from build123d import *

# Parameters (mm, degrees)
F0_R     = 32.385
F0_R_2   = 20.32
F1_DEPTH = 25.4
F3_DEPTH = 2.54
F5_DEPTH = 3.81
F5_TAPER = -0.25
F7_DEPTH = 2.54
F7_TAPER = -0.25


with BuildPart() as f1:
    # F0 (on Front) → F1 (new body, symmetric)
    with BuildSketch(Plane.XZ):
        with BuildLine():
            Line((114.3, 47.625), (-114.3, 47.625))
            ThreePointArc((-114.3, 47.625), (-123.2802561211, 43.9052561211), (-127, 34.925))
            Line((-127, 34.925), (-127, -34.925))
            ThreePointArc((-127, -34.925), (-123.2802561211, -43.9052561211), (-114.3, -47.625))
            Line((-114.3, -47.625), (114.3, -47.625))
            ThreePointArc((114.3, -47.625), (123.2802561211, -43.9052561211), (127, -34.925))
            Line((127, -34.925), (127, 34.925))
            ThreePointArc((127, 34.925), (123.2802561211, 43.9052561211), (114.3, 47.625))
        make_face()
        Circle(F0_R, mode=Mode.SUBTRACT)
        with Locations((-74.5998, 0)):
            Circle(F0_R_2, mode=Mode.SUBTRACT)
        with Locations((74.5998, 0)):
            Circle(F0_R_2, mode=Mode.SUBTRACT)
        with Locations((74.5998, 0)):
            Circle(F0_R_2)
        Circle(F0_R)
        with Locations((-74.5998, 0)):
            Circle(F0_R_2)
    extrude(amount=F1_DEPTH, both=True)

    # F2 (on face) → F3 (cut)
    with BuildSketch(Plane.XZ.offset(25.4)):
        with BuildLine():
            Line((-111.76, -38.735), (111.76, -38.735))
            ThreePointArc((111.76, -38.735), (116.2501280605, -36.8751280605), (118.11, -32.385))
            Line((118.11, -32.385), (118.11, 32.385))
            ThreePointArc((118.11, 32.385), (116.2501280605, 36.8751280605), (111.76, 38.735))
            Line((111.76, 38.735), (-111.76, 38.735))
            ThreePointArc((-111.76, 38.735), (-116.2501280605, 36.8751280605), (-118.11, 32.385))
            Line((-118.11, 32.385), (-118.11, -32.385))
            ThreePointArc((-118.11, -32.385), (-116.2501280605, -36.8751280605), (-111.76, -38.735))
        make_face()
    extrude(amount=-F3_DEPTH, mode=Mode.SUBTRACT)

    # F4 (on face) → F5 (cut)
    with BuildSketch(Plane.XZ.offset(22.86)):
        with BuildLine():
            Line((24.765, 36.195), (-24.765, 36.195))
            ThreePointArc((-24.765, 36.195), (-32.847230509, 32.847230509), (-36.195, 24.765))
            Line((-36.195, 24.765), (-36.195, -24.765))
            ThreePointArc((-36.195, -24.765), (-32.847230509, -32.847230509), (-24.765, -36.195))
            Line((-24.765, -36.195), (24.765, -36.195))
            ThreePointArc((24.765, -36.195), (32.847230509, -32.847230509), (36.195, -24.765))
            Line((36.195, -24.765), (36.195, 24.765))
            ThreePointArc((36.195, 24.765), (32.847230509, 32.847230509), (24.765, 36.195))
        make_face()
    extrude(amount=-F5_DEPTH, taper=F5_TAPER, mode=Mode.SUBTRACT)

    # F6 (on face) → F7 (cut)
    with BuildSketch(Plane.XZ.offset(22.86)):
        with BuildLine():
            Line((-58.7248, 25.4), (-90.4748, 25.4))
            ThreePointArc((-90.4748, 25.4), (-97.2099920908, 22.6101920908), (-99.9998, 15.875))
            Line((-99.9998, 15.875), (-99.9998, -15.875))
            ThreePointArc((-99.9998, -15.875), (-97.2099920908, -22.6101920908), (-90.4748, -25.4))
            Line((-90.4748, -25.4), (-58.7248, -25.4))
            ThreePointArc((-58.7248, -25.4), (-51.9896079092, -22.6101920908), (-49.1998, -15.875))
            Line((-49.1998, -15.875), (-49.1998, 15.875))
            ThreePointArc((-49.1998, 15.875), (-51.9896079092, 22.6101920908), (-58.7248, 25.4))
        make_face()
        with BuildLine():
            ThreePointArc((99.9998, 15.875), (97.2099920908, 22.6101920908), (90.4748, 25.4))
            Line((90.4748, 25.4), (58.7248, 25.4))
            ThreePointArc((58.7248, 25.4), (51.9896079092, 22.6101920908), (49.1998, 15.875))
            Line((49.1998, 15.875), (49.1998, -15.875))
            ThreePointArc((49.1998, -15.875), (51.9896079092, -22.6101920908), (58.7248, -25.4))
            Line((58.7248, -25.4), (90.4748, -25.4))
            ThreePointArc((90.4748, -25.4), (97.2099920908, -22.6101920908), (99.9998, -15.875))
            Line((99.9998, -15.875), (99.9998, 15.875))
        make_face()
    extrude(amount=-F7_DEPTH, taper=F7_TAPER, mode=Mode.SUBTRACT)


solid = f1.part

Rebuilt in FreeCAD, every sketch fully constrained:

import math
import FreeCAD as App
import Part
import Sketcher
from FreeCAD import Vector
Q = App.Units.Quantity

doc = App.newDocument("Part")
params = doc.addObject("Spreadsheet::Sheet", "Params")
for row, (alias, value) in enumerate([
    ("sketch1_radius", "0.5 in"),
    ("sketch1_width", "9 in"),
    ("sketch1_height", "2.75 in"),
    ("pad1_length", "2 in"),
    ("sketch2_radius", "0.25 in"),
    ("sketch2_width", "8.8 in"),
    ("sketch2_height", "2.55 in"),
    ("pocket1_length", "0.1 in"),
    ("sketch3_radius", "0.45 in"),
    ("sketch3_width", "1.95 in"),
    ("pocket2_length", "0.15 in"),
    ("pocket2_taper", "0.25 deg"),
    ("sketch4_radius", "0.375 in"),
    ("pocket3_length", "0.1 in"),
    ("pocket3_taper", "0.25 deg"),
], start=1):
    params.set(f"A{row}", alias)
    params.set(f"B{row}", "=" + value)
    params.setAlias(f"B{row}", alias)

body = doc.addObject("PartDesign::Body", "Body")

# Sketch on XZ plane
sketch1 = doc.addObject("Sketcher::SketchObject", "Sketch")
body.addObject(sketch1)
sketch1.AttachmentSupport = (doc.XZ_Plane, [""])
sketch1.MapMode = "FlatFace"
sketch1.addGeometry([
    Part.LineSegment(Vector(114, 48, 0), Vector(-114, 48, 0)),  # 0
    Part.ArcOfCircle(Part.Circle(Vector(-114, 35, 0), Vector(0, 0, 1), 13), math.radians(90), math.radians(180)),  # 1
    Part.LineSegment(Vector(-127, 35, 0), Vector(-127, -35, 0)),  # 2
    Part.ArcOfCircle(Part.Circle(Vector(-114, -35, 0), Vector(0, 0, 1), 13), math.radians(180), math.radians(270)),  # 3
    Part.LineSegment(Vector(-114, -48, 0), Vector(114, -48, 0)),  # 4
    Part.ArcOfCircle(Part.Circle(Vector(114, -35, 0), Vector(0, 0, 1), 13), math.radians(-90), math.radians(0)),  # 5
    Part.LineSegment(Vector(127, -35, 0), Vector(127, 35, 0)),  # 6
    Part.ArcOfCircle(Part.Circle(Vector(114, 35, 0), Vector(0, 0, 1), 13), math.radians(0), math.radians(90)),  # 7
], False)
sketch1.addConstraint([
    Sketcher.Constraint("Tangent", 0, 2, 1, 1),
    Sketcher.Constraint("Tangent", 1, 2, 2, 1),
    Sketcher.Constraint("Tangent", 2, 2, 3, 1),
    Sketcher.Constraint("Tangent", 3, 2, 4, 1),
    Sketcher.Constraint("Tangent", 4, 2, 5, 1),
    Sketcher.Constraint("Tangent", 5, 2, 6, 1),
    Sketcher.Constraint("Tangent", 6, 2, 7, 1),
    Sketcher.Constraint("Tangent", 7, 2, 0, 1),
    Sketcher.Constraint("Horizontal", 0),
    Sketcher.Constraint("Vertical", 2),
    Sketcher.Constraint("Horizontal", 4),
    Sketcher.Constraint("Vertical", 6),
    Sketcher.Constraint("Equal", 1, 3),
    Sketcher.Constraint("Equal", 3, 5),
    Sketcher.Constraint("Equal", 5, 7),
    Sketcher.Constraint("Symmetric", 1, 3, 5, 3, -1, 1),
    Sketcher.Constraint("Radius", 1, Q("0.5 in")),
    Sketcher.Constraint("DistanceX", 0, 2, 0, 1, Q("9 in")),
    Sketcher.Constraint("DistanceY", 2, 2, 2, 1, Q("2.75 in")),
])
sketch1.setExpression("Constraints[16]", "Params.sketch1_radius")
sketch1.setExpression("Constraints[17]", "Params.sketch1_width")
sketch1.setExpression("Constraints[18]", "Params.sketch1_height")
pad1 = doc.addObject("PartDesign::Pad", "Pad")
body.addObject(pad1)
pad1.Profile = sketch1
pad1.setExpression("Length", "Params.pad1_length")
pad1.Midplane = True

# Sketch on XZ plane
sketch2 = doc.addObject("Sketcher::SketchObject", "Sketch001")
body.addObject(sketch2)
sketch2.AttachmentSupport = (doc.XZ_Plane, [""])
sketch2.MapMode = "FlatFace"
sketch2.AttachmentOffset = App.Placement(Vector(0, 0, 1 * 25.4), App.Rotation())
sketch2.addGeometry([
    Part.LineSegment(Vector(-112, -39, 0), Vector(112, -39, 0)),  # 0
    Part.ArcOfCircle(Part.Circle(Vector(112, -32, 0), Vector(0, 0, 1), 6), math.radians(-90), math.radians(0)),  # 1
    Part.LineSegment(Vector(118, -32, 0), Vector(118, 32, 0)),  # 2
    Part.ArcOfCircle(Part.Circle(Vector(112, 32, 0), Vector(0, 0, 1), 6), math.radians(0), math.radians(90)),  # 3
    Part.LineSegment(Vector(112, 39, 0), Vector(-112, 39, 0)),  # 4
    Part.ArcOfCircle(Part.Circle(Vector(-112, 32, 0), Vector(0, 0, 1), 6), math.radians(90), math.radians(180)),  # 5
    Part.LineSegment(Vector(-118, 32, 0), Vector(-118, -32, 0)),  # 6
    Part.ArcOfCircle(Part.Circle(Vector(-112, -32, 0), Vector(0, 0, 1), 6), math.radians(180), math.radians(270)),  # 7
], False)
sketch2.addConstraint([
    Sketcher.Constraint("Tangent", 0, 2, 1, 1),
    Sketcher.Constraint("Tangent", 1, 2, 2, 1),
    Sketcher.Constraint("Tangent", 2, 2, 3, 1),
    Sketcher.Constraint("Tangent", 3, 2, 4, 1),
    Sketcher.Constraint("Tangent", 4, 2, 5, 1),
    Sketcher.Constraint("Tangent", 5, 2, 6, 1),
    Sketcher.Constraint("Tangent", 6, 2, 7, 1),
    Sketcher.Constraint("Tangent", 7, 2, 0, 1),
    Sketcher.Constraint("Horizontal", 0),
    Sketcher.Constraint("Vertical", 2),
    Sketcher.Constraint("Horizontal", 4),
    Sketcher.Constraint("Vertical", 6),
    Sketcher.Constraint("Equal", 1, 3),
    Sketcher.Constraint("Equal", 3, 5),
    Sketcher.Constraint("Equal", 5, 7),
    Sketcher.Constraint("Symmetric", 1, 3, 5, 3, -1, 1),
    Sketcher.Constraint("Radius", 1, Q("0.25 in")),
    Sketcher.Constraint("DistanceX", 0, 1, 0, 2, Q("8.8 in")),
    Sketcher.Constraint("DistanceY", 2, 1, 2, 2, Q("2.55 in")),
])
sketch2.setExpression("Constraints[16]", "Params.sketch2_radius")
sketch2.setExpression("Constraints[17]", "Params.sketch2_width")
sketch2.setExpression("Constraints[18]", "Params.sketch2_height")
pocket1 = doc.addObject("PartDesign::Pocket", "Pocket")
body.addObject(pocket1)
pocket1.Profile = sketch2
pocket1.setExpression("Length", "Params.pocket1_length")

# Sketch on XZ plane
sketch3 = doc.addObject("Sketcher::SketchObject", "Sketch002")
body.addObject(sketch3)
sketch3.AttachmentSupport = (doc.XZ_Plane, [""])
sketch3.MapMode = "FlatFace"
sketch3.AttachmentOffset = App.Placement(Vector(0, 0, 0.9 * 25.4), App.Rotation())
sketch3.addGeometry([
    Part.LineSegment(Vector(25, 36, 0), Vector(-25, 36, 0)),  # 0
    Part.ArcOfCircle(Part.Circle(Vector(-25, 25, 0), Vector(0, 0, 1), 11), math.radians(90), math.radians(180)),  # 1
    Part.LineSegment(Vector(-36, 25, 0), Vector(-36, -25, 0)),  # 2
    Part.ArcOfCircle(Part.Circle(Vector(-25, -25, 0), Vector(0, 0, 1), 11), math.radians(180), math.radians(270)),  # 3
    Part.LineSegment(Vector(-25, -36, 0), Vector(25, -36, 0)),  # 4
    Part.ArcOfCircle(Part.Circle(Vector(25, -25, 0), Vector(0, 0, 1), 11), math.radians(-90), math.radians(0)),  # 5
    Part.LineSegment(Vector(36, -25, 0), Vector(36, 25, 0)),  # 6
    Part.ArcOfCircle(Part.Circle(Vector(25, 25, 0), Vector(0, 0, 1), 11), math.radians(0), math.radians(90)),  # 7
], False)
sketch3.addConstraint([
    Sketcher.Constraint("Tangent", 0, 2, 1, 1),
    Sketcher.Constraint("Tangent", 1, 2, 2, 1),
    Sketcher.Constraint("Tangent", 2, 2, 3, 1),
    Sketcher.Constraint("Tangent", 3, 2, 4, 1),
    Sketcher.Constraint("Tangent", 4, 2, 5, 1),
    Sketcher.Constraint("Tangent", 5, 2, 6, 1),
    Sketcher.Constraint("Tangent", 6, 2, 7, 1),
    Sketcher.Constraint("Tangent", 7, 2, 0, 1),
    Sketcher.Constraint("Horizontal", 0),
    Sketcher.Constraint("Vertical", 2),
    Sketcher.Constraint("Horizontal", 4),
    Sketcher.Constraint("Vertical", 6),
    Sketcher.Constraint("Equal", 1, 3),
    Sketcher.Constraint("Equal", 3, 5),
    Sketcher.Constraint("Equal", 5, 7),
    Sketcher.Constraint("Symmetric", 1, 3, 5, 3, -1, 1),
    Sketcher.Constraint("Equal", 4, 2),
    Sketcher.Constraint("Radius", 1, Q("0.45 in")),
    Sketcher.Constraint("DistanceX", 0, 2, 0, 1, Q("1.95 in")),
])
sketch3.setExpression("Constraints[17]", "Params.sketch3_radius")
sketch3.setExpression("Constraints[18]", "Params.sketch3_width")
pocket2 = doc.addObject("PartDesign::Pocket", "Pocket001")
body.addObject(pocket2)
pocket2.Profile = sketch3
pocket2.setExpression("Length", "Params.pocket2_length")
pocket2.setExpression("TaperAngle", "Params.pocket2_taper")

# Sketch on XZ plane
sketch4 = doc.addObject("Sketcher::SketchObject", "Sketch003")
body.addObject(sketch4)
sketch4.AttachmentSupport = (doc.XZ_Plane, [""])
sketch4.MapMode = "FlatFace"
sketch4.AttachmentOffset = App.Placement(Vector(0, 0, 0.9 * 25.4), App.Rotation())
sketch4.addGeometry([
    Part.LineSegment(Vector(-59, 25, 0), Vector(-90, 25, 0)),  # 0
    Part.ArcOfCircle(Part.Circle(Vector(-90, 16, 0), Vector(0, 0, 1), 10), math.radians(90), math.radians(180)),  # 1
    Part.LineSegment(Vector(-100, 16, 0), Vector(-100, -16, 0)),  # 2
    Part.ArcOfCircle(Part.Circle(Vector(-90, -16, 0), Vector(0, 0, 1), 10), math.radians(180), math.radians(270)),  # 3
    Part.LineSegment(Vector(-90, -25, 0), Vector(-59, -25, 0)),  # 4
    Part.ArcOfCircle(Part.Circle(Vector(-59, -16, 0), Vector(0, 0, 1), 10), math.radians(-90), math.radians(0)),  # 5
    Part.LineSegment(Vector(-49, -16, 0), Vector(-49, 16, 0)),  # 6
    Part.ArcOfCircle(Part.Circle(Vector(-59, 16, 0), Vector(0, 0, 1), 10), math.radians(0), math.radians(90)),  # 7
    Part.ArcOfCircle(Part.Circle(Vector(90, 16, 0), Vector(0, 0, 1), 10), math.radians(0), math.radians(90)),  # 8
    Part.LineSegment(Vector(90, 25, 0), Vector(59, 25, 0)),  # 9
    Part.ArcOfCircle(Part.Circle(Vector(59, 16, 0), Vector(0, 0, 1), 10), math.radians(90), math.radians(180)),  # 10
    Part.LineSegment(Vector(49, 16, 0), Vector(49, -16, 0)),  # 11
    Part.ArcOfCircle(Part.Circle(Vector(59, -16, 0), Vector(0, 0, 1), 10), math.radians(180), math.radians(270)),  # 12
    Part.LineSegment(Vector(59, -25, 0), Vector(90, -25, 0)),  # 13
    Part.ArcOfCircle(Part.Circle(Vector(90, -16, 0), Vector(0, 0, 1), 10), math.radians(-90), math.radians(0)),  # 14
    Part.LineSegment(Vector(100, -16, 0), Vector(100, 16, 0)),  # 15
], False)
sketch4.addConstraint([
    Sketcher.Constraint("Tangent", 0, 2, 1, 1),
    Sketcher.Constraint("Tangent", 1, 2, 2, 1),
    Sketcher.Constraint("Tangent", 2, 2, 3, 1),
    Sketcher.Constraint("Tangent", 3, 2, 4, 1),
    Sketcher.Constraint("Tangent", 4, 2, 5, 1),
    Sketcher.Constraint("Tangent", 5, 2, 6, 1),
    Sketcher.Constraint("Tangent", 6, 2, 7, 1),
    Sketcher.Constraint("Tangent", 7, 2, 0, 1),
    Sketcher.Constraint("Tangent", 8, 2, 9, 1),
    Sketcher.Constraint("Tangent", 9, 2, 10, 1),
    Sketcher.Constraint("Tangent", 10, 2, 11, 1),
    Sketcher.Constraint("Tangent", 11, 2, 12, 1),
    Sketcher.Constraint("Tangent", 12, 2, 13, 1),
    Sketcher.Constraint("Tangent", 13, 2, 14, 1),
    Sketcher.Constraint("Tangent", 14, 2, 15, 1),
    Sketcher.Constraint("Tangent", 15, 2, 8, 1),
    Sketcher.Constraint("Horizontal", 0),
    Sketcher.Constraint("Vertical", 2),
    Sketcher.Constraint("Horizontal", 4),
    Sketcher.Constraint("Vertical", 6),
    Sketcher.Constraint("Horizontal", 9),
    Sketcher.Constraint("Vertical", 11),
    Sketcher.Constraint("Horizontal", 13),
    Sketcher.Constraint("Vertical", 15),
    Sketcher.Constraint("Equal", 1, 3),
    Sketcher.Constraint("Equal", 3, 5),
    Sketcher.Constraint("Equal", 5, 7),
    Sketcher.Constraint("Equal", 7, 8),
    Sketcher.Constraint("Equal", 8, 10),
    Sketcher.Constraint("Equal", 10, 12),
    Sketcher.Constraint("Equal", 12, 14),
    Sketcher.Constraint("Symmetric", 3, 3, 8, 3, -1, 1),
    Sketcher.Constraint("Symmetric", 7, 3, 12, 3, -1, 1),
    Sketcher.Constraint("Horizontal", 7, 3, 8, 3),
    Sketcher.Constraint("Equal", 13, 2),
    Sketcher.Constraint("DistanceY", -1, 1, 0, 2, Q("1 in")),
    Sketcher.Constraint("Radius", 1, Q("0.375 in")),
    Sketcher.Constraint("DistanceX", 1, 3, -1, 1, Q("3.562 in")),
])
sketch4.setExpression("Constraints[36]", "Params.sketch4_radius")
pocket3 = doc.addObject("PartDesign::Pocket", "Pocket002")
body.addObject(pocket3)
pocket3.Profile = sketch4
pocket3.setExpression("Length", "Params.pocket3_length")
pocket3.setExpression("TaperAngle", "Params.pocket3_taper")

doc.recompute()
